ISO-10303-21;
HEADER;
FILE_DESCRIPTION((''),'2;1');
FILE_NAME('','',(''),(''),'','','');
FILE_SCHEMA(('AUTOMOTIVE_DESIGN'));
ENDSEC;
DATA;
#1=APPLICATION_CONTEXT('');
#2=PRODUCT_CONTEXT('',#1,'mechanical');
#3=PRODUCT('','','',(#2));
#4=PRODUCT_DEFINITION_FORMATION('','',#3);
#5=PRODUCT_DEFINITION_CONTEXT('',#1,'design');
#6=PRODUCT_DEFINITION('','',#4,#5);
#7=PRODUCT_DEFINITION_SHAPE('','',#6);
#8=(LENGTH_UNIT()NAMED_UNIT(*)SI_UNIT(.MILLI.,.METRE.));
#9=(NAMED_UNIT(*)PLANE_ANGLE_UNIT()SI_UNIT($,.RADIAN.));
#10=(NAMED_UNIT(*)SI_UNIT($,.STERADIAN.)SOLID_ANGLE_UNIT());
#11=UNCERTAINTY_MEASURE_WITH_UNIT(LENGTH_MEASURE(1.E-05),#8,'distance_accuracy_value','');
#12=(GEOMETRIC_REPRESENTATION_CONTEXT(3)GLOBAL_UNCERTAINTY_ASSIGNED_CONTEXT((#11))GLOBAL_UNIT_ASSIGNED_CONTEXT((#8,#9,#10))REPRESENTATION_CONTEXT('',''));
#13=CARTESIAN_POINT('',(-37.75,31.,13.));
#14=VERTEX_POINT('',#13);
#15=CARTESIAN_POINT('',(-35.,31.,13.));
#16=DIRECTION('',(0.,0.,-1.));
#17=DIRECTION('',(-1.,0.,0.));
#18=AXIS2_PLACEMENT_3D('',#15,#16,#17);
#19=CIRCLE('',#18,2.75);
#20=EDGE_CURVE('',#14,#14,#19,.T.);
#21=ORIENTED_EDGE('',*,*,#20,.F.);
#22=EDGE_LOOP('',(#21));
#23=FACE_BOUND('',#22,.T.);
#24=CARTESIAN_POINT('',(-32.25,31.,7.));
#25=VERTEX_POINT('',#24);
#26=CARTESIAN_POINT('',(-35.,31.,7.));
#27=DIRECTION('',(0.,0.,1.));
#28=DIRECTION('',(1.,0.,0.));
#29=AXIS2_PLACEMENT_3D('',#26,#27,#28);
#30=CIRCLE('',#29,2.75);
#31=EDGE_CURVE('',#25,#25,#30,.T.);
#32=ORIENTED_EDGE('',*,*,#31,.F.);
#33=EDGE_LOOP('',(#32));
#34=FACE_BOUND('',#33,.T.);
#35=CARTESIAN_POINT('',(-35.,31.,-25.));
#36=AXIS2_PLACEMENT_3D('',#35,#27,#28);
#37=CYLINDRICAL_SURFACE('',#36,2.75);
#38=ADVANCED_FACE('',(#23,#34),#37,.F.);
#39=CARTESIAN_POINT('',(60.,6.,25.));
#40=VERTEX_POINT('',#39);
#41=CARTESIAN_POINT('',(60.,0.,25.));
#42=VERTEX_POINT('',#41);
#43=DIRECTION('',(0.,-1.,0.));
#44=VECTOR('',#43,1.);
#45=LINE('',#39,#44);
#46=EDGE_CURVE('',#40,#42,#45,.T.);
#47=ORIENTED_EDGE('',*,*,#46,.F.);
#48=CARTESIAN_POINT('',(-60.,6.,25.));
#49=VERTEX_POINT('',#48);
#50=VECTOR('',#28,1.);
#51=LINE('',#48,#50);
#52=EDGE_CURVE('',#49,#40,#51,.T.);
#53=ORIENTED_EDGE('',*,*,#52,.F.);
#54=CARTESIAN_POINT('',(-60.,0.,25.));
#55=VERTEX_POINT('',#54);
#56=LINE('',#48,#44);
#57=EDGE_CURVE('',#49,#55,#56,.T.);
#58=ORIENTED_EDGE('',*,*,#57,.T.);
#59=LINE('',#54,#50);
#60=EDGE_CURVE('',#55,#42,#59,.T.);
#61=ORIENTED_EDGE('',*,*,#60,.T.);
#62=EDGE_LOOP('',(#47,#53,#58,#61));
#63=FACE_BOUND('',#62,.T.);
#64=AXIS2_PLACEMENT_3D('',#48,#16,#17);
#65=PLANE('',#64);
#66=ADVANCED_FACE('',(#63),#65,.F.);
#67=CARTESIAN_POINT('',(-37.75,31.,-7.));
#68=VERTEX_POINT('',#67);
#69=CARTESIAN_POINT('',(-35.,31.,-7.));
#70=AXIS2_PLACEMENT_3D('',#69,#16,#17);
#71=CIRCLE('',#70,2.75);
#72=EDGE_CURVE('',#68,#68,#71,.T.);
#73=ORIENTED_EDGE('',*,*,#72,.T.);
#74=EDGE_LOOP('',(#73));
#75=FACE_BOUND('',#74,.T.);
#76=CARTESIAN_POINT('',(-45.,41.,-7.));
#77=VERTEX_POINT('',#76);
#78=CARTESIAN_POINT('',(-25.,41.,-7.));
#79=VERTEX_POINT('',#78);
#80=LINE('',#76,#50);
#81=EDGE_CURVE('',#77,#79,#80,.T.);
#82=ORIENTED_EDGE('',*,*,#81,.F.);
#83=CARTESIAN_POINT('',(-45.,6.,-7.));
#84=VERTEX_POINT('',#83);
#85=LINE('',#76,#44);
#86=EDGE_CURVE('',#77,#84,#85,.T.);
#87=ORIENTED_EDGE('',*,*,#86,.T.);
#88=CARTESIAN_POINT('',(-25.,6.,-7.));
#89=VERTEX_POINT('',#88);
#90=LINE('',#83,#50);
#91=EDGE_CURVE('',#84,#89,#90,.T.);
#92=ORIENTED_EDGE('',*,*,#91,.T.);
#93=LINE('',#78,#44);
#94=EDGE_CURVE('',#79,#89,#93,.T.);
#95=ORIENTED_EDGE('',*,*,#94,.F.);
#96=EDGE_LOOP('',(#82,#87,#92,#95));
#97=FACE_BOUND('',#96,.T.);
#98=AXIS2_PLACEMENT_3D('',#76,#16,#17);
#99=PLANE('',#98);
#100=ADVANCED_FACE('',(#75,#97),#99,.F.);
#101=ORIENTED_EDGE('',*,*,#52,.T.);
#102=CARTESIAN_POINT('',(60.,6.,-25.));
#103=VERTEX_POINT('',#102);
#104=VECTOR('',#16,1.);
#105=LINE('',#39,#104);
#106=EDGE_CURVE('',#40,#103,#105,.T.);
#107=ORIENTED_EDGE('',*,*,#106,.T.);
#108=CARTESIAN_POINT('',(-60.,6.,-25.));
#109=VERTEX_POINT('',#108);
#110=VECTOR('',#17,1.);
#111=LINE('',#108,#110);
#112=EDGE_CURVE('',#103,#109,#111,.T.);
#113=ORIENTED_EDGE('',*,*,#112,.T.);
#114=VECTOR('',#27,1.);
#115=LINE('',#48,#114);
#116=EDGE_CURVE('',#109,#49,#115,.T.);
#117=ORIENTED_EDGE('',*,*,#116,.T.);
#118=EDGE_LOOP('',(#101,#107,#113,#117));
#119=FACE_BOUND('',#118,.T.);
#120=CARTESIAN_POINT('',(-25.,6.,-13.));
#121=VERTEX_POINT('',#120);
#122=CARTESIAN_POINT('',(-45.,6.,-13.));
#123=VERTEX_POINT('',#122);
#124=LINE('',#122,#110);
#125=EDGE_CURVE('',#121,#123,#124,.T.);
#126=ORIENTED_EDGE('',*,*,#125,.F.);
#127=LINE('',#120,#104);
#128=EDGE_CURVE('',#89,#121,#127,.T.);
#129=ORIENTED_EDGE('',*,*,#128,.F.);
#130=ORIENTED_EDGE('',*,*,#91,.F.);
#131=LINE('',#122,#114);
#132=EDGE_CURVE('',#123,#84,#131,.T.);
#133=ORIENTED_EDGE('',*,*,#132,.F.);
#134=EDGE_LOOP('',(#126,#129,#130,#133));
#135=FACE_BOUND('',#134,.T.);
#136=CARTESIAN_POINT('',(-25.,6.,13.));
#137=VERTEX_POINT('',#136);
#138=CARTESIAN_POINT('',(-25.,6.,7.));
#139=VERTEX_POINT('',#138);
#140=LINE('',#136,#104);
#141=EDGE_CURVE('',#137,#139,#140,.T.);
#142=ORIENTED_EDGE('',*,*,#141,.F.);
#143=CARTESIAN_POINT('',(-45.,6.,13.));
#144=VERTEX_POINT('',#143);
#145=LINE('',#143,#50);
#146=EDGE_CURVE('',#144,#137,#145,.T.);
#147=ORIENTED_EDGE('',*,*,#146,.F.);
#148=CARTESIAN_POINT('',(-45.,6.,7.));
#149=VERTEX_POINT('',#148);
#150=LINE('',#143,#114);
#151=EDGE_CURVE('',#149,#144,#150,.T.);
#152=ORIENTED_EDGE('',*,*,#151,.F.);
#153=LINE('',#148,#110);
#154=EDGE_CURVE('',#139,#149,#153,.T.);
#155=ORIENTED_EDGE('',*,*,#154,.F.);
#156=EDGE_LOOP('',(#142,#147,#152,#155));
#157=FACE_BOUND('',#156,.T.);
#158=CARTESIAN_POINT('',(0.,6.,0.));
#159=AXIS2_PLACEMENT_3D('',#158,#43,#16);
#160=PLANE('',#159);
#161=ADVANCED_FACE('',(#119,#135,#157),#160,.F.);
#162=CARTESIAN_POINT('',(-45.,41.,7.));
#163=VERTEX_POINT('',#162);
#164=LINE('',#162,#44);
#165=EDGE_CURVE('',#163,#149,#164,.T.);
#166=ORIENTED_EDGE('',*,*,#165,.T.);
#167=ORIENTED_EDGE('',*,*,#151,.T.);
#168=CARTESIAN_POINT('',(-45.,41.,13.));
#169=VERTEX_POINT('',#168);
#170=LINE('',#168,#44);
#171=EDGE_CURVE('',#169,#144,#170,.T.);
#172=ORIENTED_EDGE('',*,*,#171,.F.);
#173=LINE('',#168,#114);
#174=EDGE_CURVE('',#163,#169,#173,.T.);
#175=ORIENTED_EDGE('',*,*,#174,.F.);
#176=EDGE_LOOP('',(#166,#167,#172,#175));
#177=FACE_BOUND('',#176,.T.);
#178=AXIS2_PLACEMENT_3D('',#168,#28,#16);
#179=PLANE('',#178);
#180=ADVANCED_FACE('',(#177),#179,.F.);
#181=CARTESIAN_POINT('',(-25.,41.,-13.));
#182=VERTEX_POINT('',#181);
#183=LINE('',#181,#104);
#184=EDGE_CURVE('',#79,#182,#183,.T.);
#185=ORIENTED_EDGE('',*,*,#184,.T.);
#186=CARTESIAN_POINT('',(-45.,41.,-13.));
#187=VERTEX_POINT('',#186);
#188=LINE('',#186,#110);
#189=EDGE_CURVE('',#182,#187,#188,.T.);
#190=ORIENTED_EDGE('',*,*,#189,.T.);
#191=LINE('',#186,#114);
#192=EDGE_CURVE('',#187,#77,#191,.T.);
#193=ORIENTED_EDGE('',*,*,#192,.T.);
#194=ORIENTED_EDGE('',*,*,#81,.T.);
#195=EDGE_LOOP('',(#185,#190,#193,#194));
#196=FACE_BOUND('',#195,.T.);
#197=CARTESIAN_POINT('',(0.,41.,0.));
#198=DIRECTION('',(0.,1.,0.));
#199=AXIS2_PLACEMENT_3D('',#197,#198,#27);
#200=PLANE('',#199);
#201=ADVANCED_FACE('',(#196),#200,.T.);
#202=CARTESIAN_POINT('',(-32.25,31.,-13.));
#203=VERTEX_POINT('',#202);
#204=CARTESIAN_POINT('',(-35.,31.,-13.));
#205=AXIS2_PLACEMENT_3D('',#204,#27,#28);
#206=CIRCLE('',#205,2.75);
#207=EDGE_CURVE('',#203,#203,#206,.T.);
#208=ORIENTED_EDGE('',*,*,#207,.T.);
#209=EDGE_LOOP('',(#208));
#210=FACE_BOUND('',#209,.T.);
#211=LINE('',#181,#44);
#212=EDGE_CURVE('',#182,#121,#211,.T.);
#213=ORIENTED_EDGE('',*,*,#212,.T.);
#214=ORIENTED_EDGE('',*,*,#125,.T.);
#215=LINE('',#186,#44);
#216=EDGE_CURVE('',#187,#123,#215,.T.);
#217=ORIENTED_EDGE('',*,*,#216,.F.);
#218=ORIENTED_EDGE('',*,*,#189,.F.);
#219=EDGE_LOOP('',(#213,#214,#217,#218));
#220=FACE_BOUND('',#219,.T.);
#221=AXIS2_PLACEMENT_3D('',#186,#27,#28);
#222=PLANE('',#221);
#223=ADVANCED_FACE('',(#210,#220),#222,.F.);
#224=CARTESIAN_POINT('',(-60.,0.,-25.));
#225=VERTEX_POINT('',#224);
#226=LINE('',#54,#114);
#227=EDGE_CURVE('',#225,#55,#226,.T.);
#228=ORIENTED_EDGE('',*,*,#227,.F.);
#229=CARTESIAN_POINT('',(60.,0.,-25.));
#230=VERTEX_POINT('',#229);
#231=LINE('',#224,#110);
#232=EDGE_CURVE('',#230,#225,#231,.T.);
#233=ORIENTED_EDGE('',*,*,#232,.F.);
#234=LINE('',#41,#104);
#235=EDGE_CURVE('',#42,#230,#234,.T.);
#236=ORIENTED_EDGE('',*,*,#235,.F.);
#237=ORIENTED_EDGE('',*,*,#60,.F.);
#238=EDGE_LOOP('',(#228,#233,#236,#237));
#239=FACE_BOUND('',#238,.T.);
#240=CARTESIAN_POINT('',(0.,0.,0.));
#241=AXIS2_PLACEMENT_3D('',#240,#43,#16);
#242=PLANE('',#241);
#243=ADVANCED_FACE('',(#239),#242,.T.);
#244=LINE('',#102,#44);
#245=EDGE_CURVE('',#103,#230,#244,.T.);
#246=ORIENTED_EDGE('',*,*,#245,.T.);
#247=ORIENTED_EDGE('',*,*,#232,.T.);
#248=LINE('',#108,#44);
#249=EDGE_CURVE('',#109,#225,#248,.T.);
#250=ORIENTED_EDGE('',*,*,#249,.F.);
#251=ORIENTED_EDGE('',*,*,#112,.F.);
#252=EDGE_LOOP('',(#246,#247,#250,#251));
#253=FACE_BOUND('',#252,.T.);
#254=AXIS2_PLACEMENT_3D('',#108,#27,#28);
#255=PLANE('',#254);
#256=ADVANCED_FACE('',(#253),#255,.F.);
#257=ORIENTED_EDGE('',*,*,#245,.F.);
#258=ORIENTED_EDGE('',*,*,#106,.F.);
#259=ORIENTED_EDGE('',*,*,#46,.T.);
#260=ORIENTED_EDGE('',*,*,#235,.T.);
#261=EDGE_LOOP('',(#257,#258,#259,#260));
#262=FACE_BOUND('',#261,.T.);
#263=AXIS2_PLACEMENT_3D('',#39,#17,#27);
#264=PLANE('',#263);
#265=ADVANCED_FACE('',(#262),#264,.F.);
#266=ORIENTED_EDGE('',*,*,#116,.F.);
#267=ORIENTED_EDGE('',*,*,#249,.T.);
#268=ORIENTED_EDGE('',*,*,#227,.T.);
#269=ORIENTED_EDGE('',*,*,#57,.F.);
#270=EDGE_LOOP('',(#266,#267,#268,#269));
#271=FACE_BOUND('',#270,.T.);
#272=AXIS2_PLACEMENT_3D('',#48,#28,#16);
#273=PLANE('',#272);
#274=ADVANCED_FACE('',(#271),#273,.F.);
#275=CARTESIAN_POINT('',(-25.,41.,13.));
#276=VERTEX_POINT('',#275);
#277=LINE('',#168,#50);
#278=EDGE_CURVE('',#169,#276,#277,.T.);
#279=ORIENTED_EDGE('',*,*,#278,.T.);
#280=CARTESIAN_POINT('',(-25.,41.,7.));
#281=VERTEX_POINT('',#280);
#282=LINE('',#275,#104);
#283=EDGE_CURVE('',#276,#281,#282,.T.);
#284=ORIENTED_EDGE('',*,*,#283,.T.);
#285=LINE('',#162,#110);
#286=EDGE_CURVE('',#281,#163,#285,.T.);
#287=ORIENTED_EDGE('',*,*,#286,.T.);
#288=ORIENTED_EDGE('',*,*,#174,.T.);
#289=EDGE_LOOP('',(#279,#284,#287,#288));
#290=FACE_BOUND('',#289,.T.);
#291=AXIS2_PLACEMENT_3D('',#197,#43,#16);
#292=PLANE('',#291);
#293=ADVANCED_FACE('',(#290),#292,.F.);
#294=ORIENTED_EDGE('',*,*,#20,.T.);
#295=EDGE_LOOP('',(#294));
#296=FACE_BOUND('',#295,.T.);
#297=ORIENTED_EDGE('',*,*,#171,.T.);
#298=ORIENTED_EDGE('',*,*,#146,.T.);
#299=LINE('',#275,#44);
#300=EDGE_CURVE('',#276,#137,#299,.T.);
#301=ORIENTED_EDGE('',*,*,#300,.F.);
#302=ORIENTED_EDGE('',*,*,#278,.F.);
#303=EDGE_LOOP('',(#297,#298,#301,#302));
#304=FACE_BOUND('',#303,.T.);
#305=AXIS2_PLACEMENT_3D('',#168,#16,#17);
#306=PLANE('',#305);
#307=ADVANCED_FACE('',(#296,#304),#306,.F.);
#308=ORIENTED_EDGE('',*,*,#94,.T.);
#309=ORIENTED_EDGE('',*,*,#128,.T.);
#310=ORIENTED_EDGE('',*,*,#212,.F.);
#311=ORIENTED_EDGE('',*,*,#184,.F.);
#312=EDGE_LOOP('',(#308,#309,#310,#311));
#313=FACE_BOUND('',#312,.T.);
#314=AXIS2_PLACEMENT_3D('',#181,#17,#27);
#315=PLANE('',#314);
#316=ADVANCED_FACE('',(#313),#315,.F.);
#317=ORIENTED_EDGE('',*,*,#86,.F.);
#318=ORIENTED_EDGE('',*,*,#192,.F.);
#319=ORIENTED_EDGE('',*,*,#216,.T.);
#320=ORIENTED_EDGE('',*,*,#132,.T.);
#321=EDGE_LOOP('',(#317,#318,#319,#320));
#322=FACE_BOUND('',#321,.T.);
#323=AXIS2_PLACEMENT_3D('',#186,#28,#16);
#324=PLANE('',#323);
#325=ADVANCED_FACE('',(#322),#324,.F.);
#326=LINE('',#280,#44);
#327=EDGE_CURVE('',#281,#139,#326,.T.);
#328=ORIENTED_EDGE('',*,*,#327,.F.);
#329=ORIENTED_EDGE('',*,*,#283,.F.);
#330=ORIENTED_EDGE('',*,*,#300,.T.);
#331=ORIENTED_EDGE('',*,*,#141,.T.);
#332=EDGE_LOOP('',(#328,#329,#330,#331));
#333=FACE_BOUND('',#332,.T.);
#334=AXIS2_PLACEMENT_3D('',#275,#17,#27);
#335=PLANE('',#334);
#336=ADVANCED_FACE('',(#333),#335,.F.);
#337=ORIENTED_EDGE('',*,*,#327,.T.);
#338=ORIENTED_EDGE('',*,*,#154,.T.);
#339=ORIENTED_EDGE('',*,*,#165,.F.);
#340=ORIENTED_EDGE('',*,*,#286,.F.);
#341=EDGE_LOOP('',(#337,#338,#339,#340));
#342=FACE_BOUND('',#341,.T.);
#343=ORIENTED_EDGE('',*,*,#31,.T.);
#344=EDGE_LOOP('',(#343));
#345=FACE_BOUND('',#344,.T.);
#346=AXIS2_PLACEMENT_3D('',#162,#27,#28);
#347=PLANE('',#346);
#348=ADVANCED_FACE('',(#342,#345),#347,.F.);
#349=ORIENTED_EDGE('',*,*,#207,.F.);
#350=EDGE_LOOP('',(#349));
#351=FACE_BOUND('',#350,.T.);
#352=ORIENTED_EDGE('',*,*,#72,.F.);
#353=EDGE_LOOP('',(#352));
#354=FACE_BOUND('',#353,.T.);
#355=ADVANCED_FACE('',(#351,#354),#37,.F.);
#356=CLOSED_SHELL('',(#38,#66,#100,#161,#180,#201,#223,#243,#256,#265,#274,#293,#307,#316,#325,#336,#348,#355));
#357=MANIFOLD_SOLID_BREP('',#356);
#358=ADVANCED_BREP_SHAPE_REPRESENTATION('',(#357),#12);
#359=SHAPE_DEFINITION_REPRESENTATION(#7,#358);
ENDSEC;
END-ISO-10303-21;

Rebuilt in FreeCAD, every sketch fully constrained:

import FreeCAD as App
import Part
import Sketcher

doc = App.newDocument("Part")
params = doc.addObject("Spreadsheet::Sheet", "Params")
for row, (alias, value) in enumerate([
    ("sketch1_width", "120 mm"),
    ("sketch1_height", "50 mm"),
    ("pad1_length", "6 mm"),
    ("sketch2_width", "20 mm"),
    ("sketch2_height", "6 mm"),
    ("pad2_length", "35 mm"),
    ("sketch3_width", "20 mm"),
    ("sketch3_height", "6 mm"),
    ("pad3_length", "35 mm"),
    ("sketch4_diameter", "5.5 mm"),
], start=1):
    params.set(f"A{row}", alias)
    params.set(f"B{row}", "=" + value)
    params.setAlias(f"B{row}", alias)

body = doc.addObject("PartDesign::Body", "Body")

sketch1 = body.newObject("Sketcher::SketchObject", "Sketch")
sketch1.AttachmentSupport = (doc.getObject("XZ_Plane"), [""])
sketch1.MapMode = "FlatFace"
sketch1.addGeometry([
    Part.LineSegment(App.Vector(-60, -25, 0), App.Vector(-60, 25, 0)),
    Part.LineSegment(App.Vector(-60, 25, 0), App.Vector(60, 25, 0)),
    Part.LineSegment(App.Vector(60, 25, 0), App.Vector(60, -25, 0)),
    Part.LineSegment(App.Vector(60, -25, 0), App.Vector(-60, -25, 0)),
], False)
sketch1.addConstraint([
    Sketcher.Constraint("Coincident", 0, 2, 1, 1),
    Sketcher.Constraint("Coincident", 1, 2, 2, 1),
    Sketcher.Constraint("Coincident", 2, 2, 3, 1),
    Sketcher.Constraint("Coincident", 3, 2, 0, 1),
    Sketcher.Constraint("Vertical", 0),
    Sketcher.Constraint("Horizontal", 1),
    Sketcher.Constraint("Vertical", 2),
    Sketcher.Constraint("Horizontal", 3),
    Sketcher.Constraint("Symmetric", 0, 2, 2, 2, -1, 1),
    Sketcher.Constraint("DistanceX", 1, 1, 1, 2, 120.0),
    Sketcher.Constraint("DistanceY", 0, 1, 0, 2, 50.0),
])
sketch1.setExpression("Constraints[9]", "Params.sketch1_width")
sketch1.setExpression("Constraints[10]", "Params.sketch1_height")
pad1 = body.newObject("PartDesign::Pad", "Pad")
pad1.Profile = sketch1
pad1.setExpression("Length", "Params.pad1_length")
pad1.Reversed = True

sketch2 = body.newObject("Sketcher::SketchObject", "Sketch001")
sketch2.AttachmentSupport = (doc.getObject("XZ_Plane"), [""])
sketch2.MapMode = "FlatFace"
sketch2.AttachmentOffset = App.Placement(App.Vector(0, 0, -6), App.Rotation())
sketch2.addGeometry([
    Part.LineSegment(App.Vector(-45, 7, 0), App.Vector(-45, 13, 0)),
    Part.LineSegment(App.Vector(-45, 13, 0), App.Vector(-25, 13, 0)),
    Part.LineSegment(App.Vector(-25, 13, 0), App.Vector(-25, 7, 0)),
    Part.LineSegment(App.Vector(-25, 7, 0), App.Vector(-45, 7, 0)),
], False)
sketch2.addConstraint([
    Sketcher.Constraint("Coincident", 0, 2, 1, 1),
    Sketcher.Constraint("Coincident", 1, 2, 2, 1),
    Sketcher.Constraint("Coincident", 2, 2, 3, 1),
    Sketcher.Constraint("Coincident", 3, 2, 0, 1),
    Sketcher.Constraint("Vertical", 0),
    Sketcher.Constraint("Horizontal", 1),
    Sketcher.Constraint("Vertical", 2),
    Sketcher.Constraint("Horizontal", 3),
    Sketcher.Constraint("DistanceX", 1, 1, 1, 2, 20.0),
    Sketcher.Constraint("DistanceY", 0, 1, 0, 2, 6.0),
    Sketcher.Constraint("DistanceX", 0, 2, -1, 1, 45.0),
    Sketcher.Constraint("DistanceY", -1, 1, 0, 2, 13.0),
])
sketch2.setExpression("Constraints[8]", "Params.sketch2_width")
sketch2.setExpression("Constraints[9]", "Params.sketch2_height")
pad2 = body.newObject("PartDesign::Pad", "Pad001")
pad2.Profile = sketch2
pad2.setExpression("Length", "Params.pad2_length")
pad2.Reversed = True

sketch3 = body.newObject("Sketcher::SketchObject", "Sketch002")
sketch3.AttachmentSupport = (doc.getObject("XZ_Plane"), [""])
sketch3.MapMode = "FlatFace"
sketch3.AttachmentOffset = App.Placement(App.Vector(0, 0, -6), App.Rotation())
sketch3.addGeometry([
    Part.LineSegment(App.Vector(-45, -13, 0), App.Vector(-45, -7, 0)),
    Part.LineSegment(App.Vector(-45, -7, 0), App.Vector(-25, -7, 0)),
    Part.LineSegment(App.Vector(-25, -7, 0), App.Vector(-25, -13, 0)),
    Part.LineSegment(App.Vector(-25, -13, 0), App.Vector(-45, -13, 0)),
], False)
sketch3.addConstraint([
    Sketcher.Constraint("Coincident", 0, 2, 1, 1),
    Sketcher.Constraint("Coincident", 1, 2, 2, 1),
    Sketcher.Constraint("Coincident", 2, 2, 3, 1),
    Sketcher.Constraint("Coincident", 3, 2, 0, 1),
    Sketcher.Constraint("Vertical", 0),
    Sketcher.Constraint("Horizontal", 1),
    Sketcher.Constraint("Vertical", 2),
    Sketcher.Constraint("Horizontal", 3),
    Sketcher.Constraint("DistanceX", 1, 1, 1, 2, 20.0),
    Sketcher.Constraint("DistanceY", 0, 1, 0, 2, 6.0),
    Sketcher.Constraint("DistanceX", 0, 2, -1, 1, 45.0),
    Sketcher.Constraint("DistanceY", 0, 2, -1, 1, 7.0),
])
sketch3.setExpression("Constraints[8]", "Params.sketch3_width")
sketch3.setExpression("Constraints[9]", "Params.sketch3_height")
pad3 = body.newObject("PartDesign::Pad", "Pad002")
pad3.Profile = sketch3
pad3.setExpression("Length", "Params.pad3_length")
pad3.Reversed = True

sketch4 = body.newObject("Sketcher::SketchObject", "Sketch003")
sketch4.AttachmentSupport = (doc.getObject("XY_Plane"), [""])
sketch4.MapMode = "FlatFace"
sketch4.AttachmentOffset = App.Placement(App.Vector(0, 0, 13), App.Rotation())
sketch4.addGeometry(Part.Circle(App.Vector(-35, 31, 0), App.Vector(0, 0, 1), 2.8), False)
sketch4.addConstraint([
    Sketcher.Constraint("Diameter", 0, 5.5),
    Sketcher.Constraint("DistanceX", 0, 3, -1, 1, 35.0),
    Sketcher.Constraint("DistanceY", -1, 1, 0, 3, 31.0),
])
sketch4.setExpression("Constraints[0]", "Params.sketch4_diameter")
pocket1 = body.newObject("PartDesign::Pocket", "Pocket")
pocket1.Profile = sketch4
pocket1.Type = "ThroughAll"
pocket1.Midplane = True

doc.recompute()
